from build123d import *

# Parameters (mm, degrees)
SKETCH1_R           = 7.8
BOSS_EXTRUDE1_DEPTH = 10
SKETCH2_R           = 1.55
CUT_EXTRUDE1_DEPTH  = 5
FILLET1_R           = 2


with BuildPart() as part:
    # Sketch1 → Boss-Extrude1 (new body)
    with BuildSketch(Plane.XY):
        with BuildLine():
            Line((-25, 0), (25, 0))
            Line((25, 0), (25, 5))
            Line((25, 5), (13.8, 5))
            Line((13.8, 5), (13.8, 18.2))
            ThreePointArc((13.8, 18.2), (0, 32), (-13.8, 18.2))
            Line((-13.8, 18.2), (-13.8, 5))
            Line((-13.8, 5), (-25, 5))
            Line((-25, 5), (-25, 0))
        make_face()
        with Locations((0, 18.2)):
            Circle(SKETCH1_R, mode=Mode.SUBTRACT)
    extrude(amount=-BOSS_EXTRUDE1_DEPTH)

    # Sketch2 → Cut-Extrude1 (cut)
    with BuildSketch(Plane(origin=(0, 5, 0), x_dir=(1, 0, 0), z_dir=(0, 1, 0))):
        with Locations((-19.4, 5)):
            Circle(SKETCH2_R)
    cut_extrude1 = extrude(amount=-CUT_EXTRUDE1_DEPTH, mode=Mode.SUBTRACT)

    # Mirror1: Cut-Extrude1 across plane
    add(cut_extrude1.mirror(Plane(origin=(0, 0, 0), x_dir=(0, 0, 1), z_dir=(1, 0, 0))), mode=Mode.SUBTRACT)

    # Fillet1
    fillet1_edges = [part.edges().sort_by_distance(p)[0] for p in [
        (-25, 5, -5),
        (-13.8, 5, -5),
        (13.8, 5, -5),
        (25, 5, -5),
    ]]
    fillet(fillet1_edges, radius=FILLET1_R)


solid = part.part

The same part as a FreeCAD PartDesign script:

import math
import FreeCAD as App
import Part
import Sketcher
Q = App.Units.Quantity


def edges_at(feature, points):
    """Names of the edges that pass closest to the given points."""
    edges = feature.Shape.Edges
    near = lambda p: min(range(len(edges)), key=lambda i: edges[i].distToShape(Part.Vertex(*p))[0])
    return sorted({f"Edge{near(p) + 1}" for p in points})

doc = App.newDocument("Part")
body = doc.addObject("PartDesign::Body", "Body")

sketch1 = body.newObject("Sketcher::SketchObject", "Sketch")
sketch1.AttachmentSupport = (doc.getObject("XY_Plane"), [""])
sketch1.MapMode = "FlatFace"
sketch1.addGeometry(Part.LineSegment(App.Vector(-25, 0, 0), App.Vector(25, 0, 0)), False)
sketch1.addGeometry(Part.LineSegment(App.Vector(25, 0, 0), App.Vector(25, 5, 0)), False)
sketch1.addGeometry(Part.LineSegment(App.Vector(25, 5, 0), App.Vector(13.8, 5, 0)), False)
sketch1.addGeometry(Part.LineSegment(App.Vector(13.8, 5, 0), App.Vector(13.8, 18.2, 0)), False)
sketch1.addGeometry(Part.ArcOfCircle(Part.Circle(App.Vector(0, 18.2, 0), App.Vector(0, 0, 1), 13.8), math.radians(0), math.radians(180)), False)
sketch1.addGeometry(Part.LineSegment(App.Vector(-13.8, 18.2, 0), App.Vector(-13.8, 5, 0)), False)
sketch1.addGeometry(Part.LineSegment(App.Vector(-13.8, 5, 0), App.Vector(-25, 5, 0)), False)
sketch1.addGeometry(Part.LineSegment(App.Vector(-25, 5, 0), App.Vector(-25, 0, 0)), False)
sketch1.addGeometry(Part.Circle(App.Vector(0, 18.2, 0), App.Vector(0, 0, 1), 7.8), False)
sketch1.addConstraint(Sketcher.Constraint("Coincident", 0, 2, 1, 1))
sketch1.addConstraint(Sketcher.Constraint("Coincident", 1, 2, 2, 1))
sketch1.addConstraint(Sketcher.Constraint("Coincident", 2, 2, 3, 1))
sketch1.addConstraint(Sketcher.Constraint("Tangent", 3, 2, 4, 1))
sketch1.addConstraint(Sketcher.Constraint("Tangent", 4, 2, 5, 1))
sketch1.addConstraint(Sketcher.Constraint("Coincident", 5, 2, 6, 1))
sketch1.addConstraint(Sketcher.Constraint("Coincident", 6, 2, 7, 1))
sketch1.addConstraint(Sketcher.Constraint("Coincident", 7, 2, 0, 1))
sketch1.addConstraint(Sketcher.Constraint("Horizontal", 0))
sketch1.addConstraint(Sketcher.Constraint("Vertical", 1))
sketch1.addConstraint(Sketcher.Constraint("Horizontal", 2))
sketch1.addConstraint(Sketcher.Constraint("Vertical", 3))
sketch1.addConstraint(Sketcher.Constraint("Vertical", 5))
sketch1.addConstraint(Sketcher.Constraint("Horizontal", 6))
sketch1.addConstraint(Sketcher.Constraint("Vertical", 7))
sketch1.addConstraint(Sketcher.Constraint("Coincident", 8, 3, 4, 3))
sketch1.addConstraint(Sketcher.Constraint("Symmetric", 0, 2, 7, 2, -1, 1))
sketch1.addConstraint(Sketcher.Constraint("Symmetric", 2, 2, 5, 2, -2))
sketch1.addConstraint(Sketcher.Constraint("Diameter", 8, Q("15.6 mm")))
sketch1.addConstraint(Sketcher.Constraint("Radius", 4, Q("13.8 mm")))
sketch1.addConstraint(Sketcher.Constraint("DistanceX", 0, 1, 0, 2, Q("50 mm")))
sketch1.addConstraint(Sketcher.Constraint("DistanceY", 1, 1, 1, 2, Q("5 mm")))
sketch1.addConstraint(Sketcher.Constraint("DistanceY", 3, 1, 3, 2, Q("13.2 mm")))
pad1 = body.newObject("PartDesign::Pad", "Pad")
pad1.Profile = sketch1
pad1.Length = 10
pad1.Reversed = True

sketch2 = body.newObject("Sketcher::SketchObject", "Sketch001")
sketch2.AttachmentSupport = (doc.getObject("XZ_Plane"), [""])
sketch2.MapMode = "FlatFace"
sketch2.AttachmentOffset = App.Placement(App.Vector(0, 0, -5), App.Rotation())
sketch2.addGeometry(Part.Circle(App.Vector(-19.4, -5, 0), App.Vector(0, 0, 1), 1.55), False)
sketch2.addConstraint(Sketcher.Constraint("Diameter", 0, Q("3.1 mm")))
sketch2.addConstraint(Sketcher.Constraint("DistanceY", 0, 3, -1, 1, Q("5 mm")))
sketch2.addConstraint(Sketcher.Constraint("DistanceX", 0, 3, -1, 1, Q("19.4 mm")))
pocket1 = body.newObject("PartDesign::Pocket", "Pocket")
pocket1.Profile = sketch2
pocket1.Length = 5
pocket1.Reversed = True
doc.recompute()

mirrored = body.newObject("PartDesign::Mirrored", "Mirrored")
mirrored.Originals = [pocket1]
mirrored.MirrorPlane = (doc.getObject("YZ_Plane"), [""])
body.Tip = mirrored
doc.recompute()

fillet = body.newObject("PartDesign::Fillet", "Fillet")
fillet.Base = (mirrored, edges_at(mirrored, [
    (-25, 5, -5),
    (-13.8, 5, -5),
    (13.8, 5, -5),
    (25, 5, -5),
]))
fillet.Radius = 2

doc.recompute()
